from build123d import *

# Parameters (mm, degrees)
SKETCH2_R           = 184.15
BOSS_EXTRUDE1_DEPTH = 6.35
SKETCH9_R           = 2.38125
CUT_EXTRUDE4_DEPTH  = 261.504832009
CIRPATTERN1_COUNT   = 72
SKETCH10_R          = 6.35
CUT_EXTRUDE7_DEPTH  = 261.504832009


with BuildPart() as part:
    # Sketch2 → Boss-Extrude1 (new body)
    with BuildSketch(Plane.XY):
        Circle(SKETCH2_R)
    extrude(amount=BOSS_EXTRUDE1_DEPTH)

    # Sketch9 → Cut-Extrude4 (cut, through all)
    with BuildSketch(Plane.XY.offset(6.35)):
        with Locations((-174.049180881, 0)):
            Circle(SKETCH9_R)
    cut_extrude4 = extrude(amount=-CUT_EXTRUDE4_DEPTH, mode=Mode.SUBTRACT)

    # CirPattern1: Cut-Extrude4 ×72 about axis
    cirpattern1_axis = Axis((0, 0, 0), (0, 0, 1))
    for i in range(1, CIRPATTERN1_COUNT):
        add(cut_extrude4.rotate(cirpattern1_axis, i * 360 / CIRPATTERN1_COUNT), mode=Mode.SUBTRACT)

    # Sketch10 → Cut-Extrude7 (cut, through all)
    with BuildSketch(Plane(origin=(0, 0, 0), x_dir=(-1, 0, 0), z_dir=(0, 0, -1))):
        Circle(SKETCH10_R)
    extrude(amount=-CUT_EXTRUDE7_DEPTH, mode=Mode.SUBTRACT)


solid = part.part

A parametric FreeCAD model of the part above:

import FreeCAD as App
import Part
import Sketcher
Q = App.Units.Quantity

doc = App.newDocument("Part")
body = doc.addObject("PartDesign::Body", "Body")

sketch1 = body.newObject("Sketcher::SketchObject", "Sketch")
sketch1.AttachmentSupport = (doc.getObject("XY_Plane"), [""])
sketch1.MapMode = "FlatFace"
sketch1.addGeometry(Part.Circle(App.Vector(0, 0, 0), App.Vector(0, 0, 1), 184.15), False)
sketch1.addConstraint([
    Sketcher.Constraint("Coincident", 0, 3, -1, 1),
    Sketcher.Constraint("Diameter", 0, Q("14.5 in")),
])
pad1 = body.newObject("PartDesign::Pad", "Pad")
pad1.Profile = sketch1
pad1.Length = Q("0.25 in")

sketch2 = body.newObject("Sketcher::SketchObject", "Sketch001")
sketch2.AttachmentSupport = (doc.getObject("XY_Plane"), [""])
sketch2.MapMode = "FlatFace"
sketch2.AttachmentOffset = App.Placement(App.Vector(0, 0, 0.25 * 25.4), App.Rotation())
sketch2.addGeometry(Part.Circle(App.Vector(-174.049181, 0, 0), App.Vector(0, 0, 1), 2.38125), False)
sketch2.addConstraint([
    Sketcher.Constraint("PointOnObject", 0, 3, -1),
    Sketcher.Constraint("Diameter", 0, Q("0.1875 in")),
    Sketcher.Constraint("DistanceX", 0, 3, -1, 1, 174.049181),
])
pocket1 = body.newObject("PartDesign::Pocket", "Pocket")
pocket1.Profile = sketch2
pocket1.Type = "ThroughAll"
doc.recompute()

polarpattern = body.newObject("PartDesign::PolarPattern", "PolarPattern")
polarpattern.Originals = [pocket1]
polarpattern.Axis = (doc.getObject("Z_Axis"), [""])
polarpattern.Angle = 360
polarpattern.Occurrences = 72
body.Tip = polarpattern

sketch3 = body.newObject("Sketcher::SketchObject", "Sketch002")
sketch3.AttachmentSupport = (doc.getObject("XY_Plane"), [""])
sketch3.MapMode = "FlatFace"
sketch3.addGeometry(Part.Circle(App.Vector(0, 0, 0), App.Vector(0, 0, 1), 6.35), False)
sketch3.addConstraint([
    Sketcher.Constraint("Coincident", 0, 3, -1, 1),
    Sketcher.Constraint("Diameter", 0, Q("0.5 in")),
])
pocket2 = body.newObject("PartDesign::Pocket", "Pocket001")
pocket2.Profile = sketch3
pocket2.Type = "ThroughAll"
pocket2.Reversed = True

doc.recompute()
